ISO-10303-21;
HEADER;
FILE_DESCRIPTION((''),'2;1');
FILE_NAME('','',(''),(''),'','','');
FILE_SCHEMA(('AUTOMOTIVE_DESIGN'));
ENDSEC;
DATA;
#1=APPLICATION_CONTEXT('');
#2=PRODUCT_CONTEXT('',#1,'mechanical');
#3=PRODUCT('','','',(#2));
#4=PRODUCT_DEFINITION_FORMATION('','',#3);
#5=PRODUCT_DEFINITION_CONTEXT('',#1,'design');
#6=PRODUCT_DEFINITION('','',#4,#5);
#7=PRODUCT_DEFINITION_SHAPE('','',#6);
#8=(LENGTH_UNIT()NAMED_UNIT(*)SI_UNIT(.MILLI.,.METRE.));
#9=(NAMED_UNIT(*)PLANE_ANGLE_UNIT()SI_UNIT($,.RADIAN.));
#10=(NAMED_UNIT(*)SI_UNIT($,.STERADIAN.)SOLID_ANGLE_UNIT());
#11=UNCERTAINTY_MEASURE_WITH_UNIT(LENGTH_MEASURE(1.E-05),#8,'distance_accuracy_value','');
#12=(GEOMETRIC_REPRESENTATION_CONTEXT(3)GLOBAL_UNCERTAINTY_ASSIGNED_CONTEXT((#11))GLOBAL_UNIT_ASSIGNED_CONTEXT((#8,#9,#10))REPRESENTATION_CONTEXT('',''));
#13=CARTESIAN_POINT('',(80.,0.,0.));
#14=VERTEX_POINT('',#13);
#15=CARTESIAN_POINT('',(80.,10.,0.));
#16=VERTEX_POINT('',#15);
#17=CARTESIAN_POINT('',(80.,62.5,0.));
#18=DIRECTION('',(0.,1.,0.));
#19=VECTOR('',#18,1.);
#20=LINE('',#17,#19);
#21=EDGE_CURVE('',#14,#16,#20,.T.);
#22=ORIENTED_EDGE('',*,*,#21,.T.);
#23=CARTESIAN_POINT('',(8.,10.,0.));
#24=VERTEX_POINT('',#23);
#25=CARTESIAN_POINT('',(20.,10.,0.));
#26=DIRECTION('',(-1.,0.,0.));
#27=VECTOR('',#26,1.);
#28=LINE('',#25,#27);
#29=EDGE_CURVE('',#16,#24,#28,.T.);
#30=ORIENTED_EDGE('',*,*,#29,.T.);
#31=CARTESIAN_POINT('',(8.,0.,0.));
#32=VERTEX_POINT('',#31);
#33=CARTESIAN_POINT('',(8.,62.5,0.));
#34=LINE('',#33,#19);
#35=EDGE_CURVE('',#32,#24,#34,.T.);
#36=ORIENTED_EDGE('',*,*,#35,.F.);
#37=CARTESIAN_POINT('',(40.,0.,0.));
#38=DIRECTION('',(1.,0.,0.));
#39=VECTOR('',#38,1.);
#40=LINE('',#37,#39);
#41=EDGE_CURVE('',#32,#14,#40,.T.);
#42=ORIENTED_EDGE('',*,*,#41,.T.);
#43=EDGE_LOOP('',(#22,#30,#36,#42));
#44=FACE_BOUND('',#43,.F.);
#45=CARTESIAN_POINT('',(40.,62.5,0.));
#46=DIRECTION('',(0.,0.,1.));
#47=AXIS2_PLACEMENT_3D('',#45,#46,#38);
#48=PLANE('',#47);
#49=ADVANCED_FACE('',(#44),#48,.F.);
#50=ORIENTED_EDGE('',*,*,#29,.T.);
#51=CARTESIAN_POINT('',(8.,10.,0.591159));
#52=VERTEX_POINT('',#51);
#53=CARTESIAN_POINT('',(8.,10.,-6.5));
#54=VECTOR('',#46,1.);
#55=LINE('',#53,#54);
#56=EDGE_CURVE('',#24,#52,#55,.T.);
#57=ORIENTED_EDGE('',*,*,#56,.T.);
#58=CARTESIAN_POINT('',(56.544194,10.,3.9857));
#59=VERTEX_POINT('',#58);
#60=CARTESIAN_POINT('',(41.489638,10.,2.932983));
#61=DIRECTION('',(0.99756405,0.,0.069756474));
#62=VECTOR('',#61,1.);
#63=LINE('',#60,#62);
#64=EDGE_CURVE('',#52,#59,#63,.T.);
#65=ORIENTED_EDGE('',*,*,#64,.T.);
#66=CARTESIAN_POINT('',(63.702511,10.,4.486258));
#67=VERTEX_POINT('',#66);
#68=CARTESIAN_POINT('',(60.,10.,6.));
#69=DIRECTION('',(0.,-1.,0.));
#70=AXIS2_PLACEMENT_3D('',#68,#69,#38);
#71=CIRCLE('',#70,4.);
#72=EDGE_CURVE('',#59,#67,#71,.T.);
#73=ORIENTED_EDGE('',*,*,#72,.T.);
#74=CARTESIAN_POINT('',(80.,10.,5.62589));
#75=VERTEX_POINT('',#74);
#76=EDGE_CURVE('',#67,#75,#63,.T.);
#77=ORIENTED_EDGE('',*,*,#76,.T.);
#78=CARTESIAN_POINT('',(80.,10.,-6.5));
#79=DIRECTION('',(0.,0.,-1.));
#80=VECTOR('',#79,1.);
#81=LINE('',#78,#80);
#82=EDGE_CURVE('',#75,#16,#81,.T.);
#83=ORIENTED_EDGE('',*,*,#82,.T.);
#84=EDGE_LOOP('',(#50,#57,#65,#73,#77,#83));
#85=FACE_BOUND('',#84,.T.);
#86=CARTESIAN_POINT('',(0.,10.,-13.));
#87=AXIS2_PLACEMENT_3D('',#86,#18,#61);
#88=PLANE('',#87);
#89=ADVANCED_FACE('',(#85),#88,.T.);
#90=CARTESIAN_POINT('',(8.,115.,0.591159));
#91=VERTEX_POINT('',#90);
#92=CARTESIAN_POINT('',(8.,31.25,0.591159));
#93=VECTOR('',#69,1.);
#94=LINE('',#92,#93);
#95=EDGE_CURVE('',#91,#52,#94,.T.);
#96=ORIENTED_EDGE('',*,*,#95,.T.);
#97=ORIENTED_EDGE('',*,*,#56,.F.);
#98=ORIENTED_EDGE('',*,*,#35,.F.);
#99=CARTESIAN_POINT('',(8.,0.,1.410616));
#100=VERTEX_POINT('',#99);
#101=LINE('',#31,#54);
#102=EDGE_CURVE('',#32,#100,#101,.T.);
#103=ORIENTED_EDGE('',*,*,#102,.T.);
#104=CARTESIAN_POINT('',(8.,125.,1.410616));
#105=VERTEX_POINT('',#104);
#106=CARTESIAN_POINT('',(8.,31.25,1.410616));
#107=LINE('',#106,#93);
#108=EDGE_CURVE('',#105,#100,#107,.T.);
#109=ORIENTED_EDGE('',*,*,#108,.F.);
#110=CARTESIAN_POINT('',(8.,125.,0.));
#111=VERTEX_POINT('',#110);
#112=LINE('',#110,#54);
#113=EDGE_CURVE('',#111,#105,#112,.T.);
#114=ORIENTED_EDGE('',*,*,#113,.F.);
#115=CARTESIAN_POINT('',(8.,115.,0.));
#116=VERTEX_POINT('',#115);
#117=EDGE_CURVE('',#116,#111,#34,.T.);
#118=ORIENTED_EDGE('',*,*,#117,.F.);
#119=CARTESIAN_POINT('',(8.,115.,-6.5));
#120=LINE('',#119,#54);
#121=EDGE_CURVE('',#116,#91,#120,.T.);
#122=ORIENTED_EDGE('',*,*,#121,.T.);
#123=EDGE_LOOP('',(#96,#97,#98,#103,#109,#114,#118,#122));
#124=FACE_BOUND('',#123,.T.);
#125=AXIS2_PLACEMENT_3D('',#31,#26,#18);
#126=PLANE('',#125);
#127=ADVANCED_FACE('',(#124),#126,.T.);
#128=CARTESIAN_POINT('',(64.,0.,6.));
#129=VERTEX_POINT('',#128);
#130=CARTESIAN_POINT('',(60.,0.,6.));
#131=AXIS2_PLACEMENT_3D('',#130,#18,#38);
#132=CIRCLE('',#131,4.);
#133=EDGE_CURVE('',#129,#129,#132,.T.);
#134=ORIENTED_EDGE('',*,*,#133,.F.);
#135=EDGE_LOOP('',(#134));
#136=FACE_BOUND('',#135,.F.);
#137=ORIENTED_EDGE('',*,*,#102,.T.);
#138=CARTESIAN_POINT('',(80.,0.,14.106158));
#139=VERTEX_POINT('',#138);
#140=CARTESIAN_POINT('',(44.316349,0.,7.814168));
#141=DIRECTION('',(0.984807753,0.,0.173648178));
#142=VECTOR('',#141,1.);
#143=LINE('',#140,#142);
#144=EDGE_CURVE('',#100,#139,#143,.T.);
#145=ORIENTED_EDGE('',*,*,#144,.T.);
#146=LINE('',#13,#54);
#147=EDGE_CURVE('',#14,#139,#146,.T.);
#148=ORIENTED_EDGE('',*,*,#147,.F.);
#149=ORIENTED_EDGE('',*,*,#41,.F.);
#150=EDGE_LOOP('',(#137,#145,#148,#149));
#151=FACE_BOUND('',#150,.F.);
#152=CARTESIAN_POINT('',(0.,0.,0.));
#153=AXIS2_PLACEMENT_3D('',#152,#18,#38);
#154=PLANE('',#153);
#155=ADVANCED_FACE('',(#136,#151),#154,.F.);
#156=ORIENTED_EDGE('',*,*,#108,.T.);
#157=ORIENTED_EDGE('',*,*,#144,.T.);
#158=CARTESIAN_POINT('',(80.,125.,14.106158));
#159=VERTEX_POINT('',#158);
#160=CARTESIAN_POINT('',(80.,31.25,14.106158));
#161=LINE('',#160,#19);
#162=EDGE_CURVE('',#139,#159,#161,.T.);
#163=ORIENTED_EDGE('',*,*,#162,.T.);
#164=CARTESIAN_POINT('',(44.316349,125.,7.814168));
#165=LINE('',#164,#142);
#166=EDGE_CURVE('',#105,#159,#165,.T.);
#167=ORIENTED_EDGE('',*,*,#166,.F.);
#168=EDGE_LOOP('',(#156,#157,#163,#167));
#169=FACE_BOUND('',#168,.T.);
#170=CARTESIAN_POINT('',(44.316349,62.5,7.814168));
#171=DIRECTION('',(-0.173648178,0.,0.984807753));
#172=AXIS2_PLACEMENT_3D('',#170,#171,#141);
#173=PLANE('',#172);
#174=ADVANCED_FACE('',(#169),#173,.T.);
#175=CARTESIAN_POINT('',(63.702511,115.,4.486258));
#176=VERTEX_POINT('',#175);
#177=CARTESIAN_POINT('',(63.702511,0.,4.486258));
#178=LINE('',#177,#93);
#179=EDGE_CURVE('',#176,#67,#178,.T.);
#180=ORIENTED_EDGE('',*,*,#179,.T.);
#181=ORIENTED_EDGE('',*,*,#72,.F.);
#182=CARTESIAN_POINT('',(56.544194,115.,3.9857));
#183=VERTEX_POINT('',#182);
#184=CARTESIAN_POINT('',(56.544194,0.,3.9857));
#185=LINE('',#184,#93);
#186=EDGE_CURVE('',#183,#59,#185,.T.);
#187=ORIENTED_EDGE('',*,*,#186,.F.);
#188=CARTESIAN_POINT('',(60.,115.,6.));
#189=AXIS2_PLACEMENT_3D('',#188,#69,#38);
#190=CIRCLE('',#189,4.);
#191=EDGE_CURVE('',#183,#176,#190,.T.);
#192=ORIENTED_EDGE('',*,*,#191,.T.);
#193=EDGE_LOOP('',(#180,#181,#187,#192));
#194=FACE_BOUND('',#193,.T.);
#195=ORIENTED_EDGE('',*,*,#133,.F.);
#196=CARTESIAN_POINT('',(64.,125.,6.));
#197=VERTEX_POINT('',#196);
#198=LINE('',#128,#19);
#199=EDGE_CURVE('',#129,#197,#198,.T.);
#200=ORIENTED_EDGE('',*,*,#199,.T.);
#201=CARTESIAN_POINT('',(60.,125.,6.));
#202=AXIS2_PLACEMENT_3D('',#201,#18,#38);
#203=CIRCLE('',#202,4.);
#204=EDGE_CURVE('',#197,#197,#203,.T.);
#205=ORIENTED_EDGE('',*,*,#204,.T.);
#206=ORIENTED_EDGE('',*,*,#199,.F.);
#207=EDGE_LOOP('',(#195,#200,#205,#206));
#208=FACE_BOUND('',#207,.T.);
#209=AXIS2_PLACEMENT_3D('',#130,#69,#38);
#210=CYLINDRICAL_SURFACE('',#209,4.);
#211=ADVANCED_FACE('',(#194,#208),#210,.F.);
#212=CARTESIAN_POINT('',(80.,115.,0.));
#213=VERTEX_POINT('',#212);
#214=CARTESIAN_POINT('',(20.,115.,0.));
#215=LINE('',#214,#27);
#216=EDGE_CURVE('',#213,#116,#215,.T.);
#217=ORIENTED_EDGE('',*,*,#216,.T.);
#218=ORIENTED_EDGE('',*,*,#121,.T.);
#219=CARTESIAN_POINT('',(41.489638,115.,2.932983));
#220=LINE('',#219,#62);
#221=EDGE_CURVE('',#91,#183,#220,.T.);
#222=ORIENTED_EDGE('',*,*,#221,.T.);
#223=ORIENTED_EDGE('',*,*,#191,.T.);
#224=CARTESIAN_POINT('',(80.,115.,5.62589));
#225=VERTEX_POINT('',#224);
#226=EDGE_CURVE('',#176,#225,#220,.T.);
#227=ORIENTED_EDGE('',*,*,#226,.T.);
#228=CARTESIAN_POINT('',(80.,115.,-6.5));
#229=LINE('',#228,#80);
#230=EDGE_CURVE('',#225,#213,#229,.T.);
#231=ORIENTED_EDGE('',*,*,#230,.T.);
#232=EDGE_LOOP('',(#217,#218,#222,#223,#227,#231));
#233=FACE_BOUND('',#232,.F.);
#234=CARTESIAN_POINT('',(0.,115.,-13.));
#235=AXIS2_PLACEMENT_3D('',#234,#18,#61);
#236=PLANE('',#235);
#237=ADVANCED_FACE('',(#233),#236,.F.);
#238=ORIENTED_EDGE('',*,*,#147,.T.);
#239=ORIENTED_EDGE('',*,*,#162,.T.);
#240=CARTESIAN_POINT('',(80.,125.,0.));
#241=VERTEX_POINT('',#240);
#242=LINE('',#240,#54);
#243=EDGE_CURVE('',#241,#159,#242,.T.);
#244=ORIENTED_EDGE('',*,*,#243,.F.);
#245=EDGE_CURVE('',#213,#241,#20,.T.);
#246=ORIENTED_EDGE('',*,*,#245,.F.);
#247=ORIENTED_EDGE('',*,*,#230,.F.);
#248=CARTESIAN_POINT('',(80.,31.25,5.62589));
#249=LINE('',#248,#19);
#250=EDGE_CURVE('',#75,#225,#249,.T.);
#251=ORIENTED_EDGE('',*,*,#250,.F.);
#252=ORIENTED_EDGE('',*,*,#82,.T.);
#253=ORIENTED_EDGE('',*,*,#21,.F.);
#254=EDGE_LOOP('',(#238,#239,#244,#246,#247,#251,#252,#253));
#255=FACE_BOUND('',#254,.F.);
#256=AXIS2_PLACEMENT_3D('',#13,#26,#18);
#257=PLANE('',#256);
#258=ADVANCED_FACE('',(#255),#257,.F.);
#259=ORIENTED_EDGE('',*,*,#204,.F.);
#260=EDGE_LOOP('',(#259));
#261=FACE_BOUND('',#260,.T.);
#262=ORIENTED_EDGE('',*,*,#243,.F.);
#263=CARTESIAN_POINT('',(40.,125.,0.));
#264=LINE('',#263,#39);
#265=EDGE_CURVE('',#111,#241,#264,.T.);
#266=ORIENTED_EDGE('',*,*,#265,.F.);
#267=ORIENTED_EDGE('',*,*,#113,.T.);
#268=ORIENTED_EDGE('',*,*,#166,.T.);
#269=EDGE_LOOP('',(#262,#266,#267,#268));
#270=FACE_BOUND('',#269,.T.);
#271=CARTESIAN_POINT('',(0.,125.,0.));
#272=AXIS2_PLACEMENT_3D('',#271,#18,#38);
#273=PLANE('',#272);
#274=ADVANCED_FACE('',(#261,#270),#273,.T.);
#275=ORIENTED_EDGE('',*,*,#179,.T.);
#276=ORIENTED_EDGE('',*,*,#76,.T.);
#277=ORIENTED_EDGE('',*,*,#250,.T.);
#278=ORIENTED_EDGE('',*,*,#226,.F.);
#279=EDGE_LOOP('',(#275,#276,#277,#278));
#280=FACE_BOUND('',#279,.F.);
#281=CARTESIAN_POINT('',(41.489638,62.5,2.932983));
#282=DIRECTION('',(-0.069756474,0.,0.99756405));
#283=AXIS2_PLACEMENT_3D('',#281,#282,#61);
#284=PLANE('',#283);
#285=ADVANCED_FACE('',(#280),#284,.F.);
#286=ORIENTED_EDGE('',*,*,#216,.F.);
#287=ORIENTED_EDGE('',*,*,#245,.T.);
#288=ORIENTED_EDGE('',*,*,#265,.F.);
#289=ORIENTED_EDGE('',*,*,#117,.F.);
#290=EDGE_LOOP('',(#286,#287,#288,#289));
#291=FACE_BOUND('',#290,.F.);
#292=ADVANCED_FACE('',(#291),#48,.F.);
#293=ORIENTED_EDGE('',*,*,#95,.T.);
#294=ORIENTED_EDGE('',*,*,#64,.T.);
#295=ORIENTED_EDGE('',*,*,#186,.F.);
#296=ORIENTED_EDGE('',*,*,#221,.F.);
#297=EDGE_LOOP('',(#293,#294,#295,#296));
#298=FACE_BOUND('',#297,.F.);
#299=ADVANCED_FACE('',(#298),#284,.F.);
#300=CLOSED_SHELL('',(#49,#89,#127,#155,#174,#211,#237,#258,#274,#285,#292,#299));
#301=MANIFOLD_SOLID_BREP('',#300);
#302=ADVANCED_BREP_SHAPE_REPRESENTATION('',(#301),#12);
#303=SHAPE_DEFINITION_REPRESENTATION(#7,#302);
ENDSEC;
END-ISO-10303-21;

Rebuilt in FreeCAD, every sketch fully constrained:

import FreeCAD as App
import Part
import Sketcher

V = App.Vector
Q = App.Units.Quantity

doc = App.newDocument("Part")
body = doc.addObject("PartDesign::Body", "Body")

# Sketch on XZ plane
sketch1 = body.newObject("Sketcher::SketchObject", "Sketch")
sketch1.AttachmentSupport = (doc.getObject("XZ_Plane"), [""])
sketch1.MapMode = "FlatFace"
sketch1.addGeometry(Part.Circle(V(60, 6, 0), V(0, 0, 1), 4), False)
sketch1.addConstraint([
    Sketcher.Constraint("Diameter", 0, Q("8 mm")),
    Sketcher.Constraint("DistanceX", -1, 1, 0, 3, Q("60 mm")),
    Sketcher.Constraint("DistanceY", -1, 1, 0, 3, Q("6 mm")),
])
pad1 = body.newObject("PartDesign::Pad", "Pad")
pad1.Profile = sketch1
pad1.Length = 125
pad1.Reversed = True
body2 = doc.addObject("PartDesign::Body", "Body001")

# Sketch on XY plane
sketch2 = body2.newObject("Sketcher::SketchObject", "Sketch001")
sketch2.AttachmentSupport = (doc.getObject("XY_Plane001"), [""])
sketch2.MapMode = "FlatFace"
sketch2.addGeometry([
    Part.LineSegment(V(0, 125, 0), V(0, 0, 0)),
    Part.LineSegment(V(0, 0, 0), V(8, 0, 0)),
    Part.LineSegment(V(8, 0, 0), V(8, 125, 0)),
    Part.LineSegment(V(8, 125, 0), V(0, 125, 0)),
], False)
sketch2.addConstraint([
    Sketcher.Constraint("Coincident", 0, 2, 1, 1),
    Sketcher.Constraint("Coincident", 1, 2, 2, 1),
    Sketcher.Constraint("Coincident", 2, 2, 3, 1),
    Sketcher.Constraint("Coincident", 3, 2, 0, 1),
    Sketcher.Constraint("Vertical", 0),
    Sketcher.Constraint("Horizontal", 1),
    Sketcher.Constraint("Vertical", 2),
    Sketcher.Constraint("Horizontal", 3),
    Sketcher.Constraint("Coincident", 0, 2, -1, 1),
    Sketcher.Constraint("DistanceX", 1, 1, 1, 2, Q("8 mm")),
    Sketcher.Constraint("DistanceY", 0, 2, 0, 1, Q("125 mm")),
])
pad2 = body2.newObject("PartDesign::Pad", "Pad001")
pad2.Profile = sketch2
pad2.Length = 2
body3 = doc.addObject("PartDesign::Body", "Body002")

# Sketch on XY plane
sketch3 = body3.newObject("Sketcher::SketchObject", "Sketch002")
sketch3.AttachmentSupport = (doc.getObject("XY_Plane002"), [""])
sketch3.MapMode = "FlatFace"
sketch3.addGeometry([
    Part.LineSegment(V(0, 125, 0), V(0, 0, 0)),
    Part.LineSegment(V(0, 0, 0), V(90, 0, 0)),
    Part.LineSegment(V(90, 0, 0), V(90, 125, 0)),
    Part.LineSegment(V(90, 125, 0), V(0, 125, 0)),
], False)
sketch3.addConstraint([
    Sketcher.Constraint("Coincident", 0, 2, 1, 1),
    Sketcher.Constraint("Coincident", 1, 2, 2, 1),
    Sketcher.Constraint("Coincident", 2, 2, 3, 1),
    Sketcher.Constraint("Coincident", 3, 2, 0, 1),
    Sketcher.Constraint("Vertical", 0),
    Sketcher.Constraint("Horizontal", 1),
    Sketcher.Constraint("Vertical", 2),
    Sketcher.Constraint("Horizontal", 3),
    Sketcher.Constraint("Coincident", 0, 2, -1, 1),
    Sketcher.Constraint("DistanceX", 1, 1, 1, 2, Q("90 mm")),
    Sketcher.Constraint("DistanceY", 0, 2, 0, 1, Q("125 mm")),
])
pad3 = body3.newObject("PartDesign::Pad", "Pad002")
pad3.Profile = sketch3
pad3.Length = 50
body4 = doc.addObject("PartDesign::Body", "Body003")
doc.recompute()

body3.Placement = App.Placement(V(0, 0, 0), App.Rotation(V(0, -1, 0), 10))
boolean = body4.newObject("PartDesign::Boolean", "Boolean")
boolean.Type = "Fuse"
boolean.addObjects([body3])
body5 = doc.addObject("PartDesign::Body", "Body004")

# Sketch on XY plane
sketch4 = body5.newObject("Sketcher::SketchObject", "Sketch003")
sketch4.AttachmentSupport = (doc.getObject("XY_Plane004"), [""])
sketch4.MapMode = "FlatFace"
sketch4.addGeometry([
    Part.LineSegment(V(0, 105, 0), V(0, 0, 0)),
    Part.LineSegment(V(0, 0, 0), V(85, 0, 0)),
    Part.LineSegment(V(85, 0, 0), V(85, 105, 0)),
    Part.LineSegment(V(85, 105, 0), V(0, 105, 0)),
], False)
sketch4.addConstraint([
    Sketcher.Constraint("Coincident", 0, 2, 1, 1),
    Sketcher.Constraint("Coincident", 1, 2, 2, 1),
    Sketcher.Constraint("Coincident", 2, 2, 3, 1),
    Sketcher.Constraint("Coincident", 3, 2, 0, 1),
    Sketcher.Constraint("Vertical", 0),
    Sketcher.Constraint("Horizontal", 1),
    Sketcher.Constraint("Vertical", 2),
    Sketcher.Constraint("Horizontal", 3),
    Sketcher.Constraint("Coincident", 0, 2, -1, 1),
    Sketcher.Constraint("DistanceX", 1, 1, 1, 2, Q("85 mm")),
    Sketcher.Constraint("DistanceY", 0, 2, 0, 1, Q("105 mm")),
])
pad4 = body5.newObject("PartDesign::Pad", "Pad003")
pad4.Profile = sketch4
pad4.Length = 13
body6 = doc.addObject("PartDesign::Body", "Body005")
doc.recompute()

body5.Placement = App.Placement(V(0, 10, -13), App.Rotation(V(0, 1, 0), 356))
boolean2 = body6.newObject("PartDesign::Boolean", "Boolean001")
boolean2.Type = "Fuse"
boolean2.addObjects([body5])
body7 = doc.addObject("PartDesign::Body", "Body006")

# Sketch on XY plane
sketch5 = body7.newObject("Sketcher::SketchObject", "Sketch004")
sketch5.AttachmentSupport = (doc.getObject("XY_Plane006"), [""])
sketch5.MapMode = "FlatFace"
sketch5.addGeometry([
    Part.LineSegment(V(0, 125, 0), V(0, 0, 0)),
    Part.LineSegment(V(0, 0, 0), V(80, 0, 0)),
    Part.LineSegment(V(80, 0, 0), V(80, 125, 0)),
    Part.LineSegment(V(80, 125, 0), V(0, 125, 0)),
], False)
sketch5.addConstraint([
    Sketcher.Constraint("Coincident", 0, 2, 1, 1),
    Sketcher.Constraint("Coincident", 1, 2, 2, 1),
    Sketcher.Constraint("Coincident", 2, 2, 3, 1),
    Sketcher.Constraint("Coincident", 3, 2, 0, 1),
    Sketcher.Constraint("Vertical", 0),
    Sketcher.Constraint("Horizontal", 1),
    Sketcher.Constraint("Vertical", 2),
    Sketcher.Constraint("Horizontal", 3),
    Sketcher.Constraint("Coincident", 0, 2, -1, 1),
    Sketcher.Constraint("DistanceX", 1, 1, 1, 2, Q("80 mm")),
    Sketcher.Constraint("DistanceY", 0, 2, 0, 1, Q("125 mm")),
])
pad5 = body7.newObject("PartDesign::Pad", "Pad004")
pad5.Profile = sketch5
pad5.Length = 50
doc.recompute()

boolean3 = body7.newObject("PartDesign::Boolean", "Boolean002")
boolean3.Type = "Cut"
boolean3.addObjects([body6])
doc.recompute()

boolean4 = body7.newObject("PartDesign::Boolean", "Boolean003")
boolean4.Type = "Cut"
boolean4.addObjects([body4])
doc.recompute()

boolean5 = body7.newObject("PartDesign::Boolean", "Boolean004")
boolean5.Type = "Cut"
boolean5.addObjects([body2])
doc.recompute()

boolean6 = body7.newObject("PartDesign::Boolean", "Boolean005")
boolean6.Type = "Cut"
boolean6.addObjects([body])

doc.recompute()
